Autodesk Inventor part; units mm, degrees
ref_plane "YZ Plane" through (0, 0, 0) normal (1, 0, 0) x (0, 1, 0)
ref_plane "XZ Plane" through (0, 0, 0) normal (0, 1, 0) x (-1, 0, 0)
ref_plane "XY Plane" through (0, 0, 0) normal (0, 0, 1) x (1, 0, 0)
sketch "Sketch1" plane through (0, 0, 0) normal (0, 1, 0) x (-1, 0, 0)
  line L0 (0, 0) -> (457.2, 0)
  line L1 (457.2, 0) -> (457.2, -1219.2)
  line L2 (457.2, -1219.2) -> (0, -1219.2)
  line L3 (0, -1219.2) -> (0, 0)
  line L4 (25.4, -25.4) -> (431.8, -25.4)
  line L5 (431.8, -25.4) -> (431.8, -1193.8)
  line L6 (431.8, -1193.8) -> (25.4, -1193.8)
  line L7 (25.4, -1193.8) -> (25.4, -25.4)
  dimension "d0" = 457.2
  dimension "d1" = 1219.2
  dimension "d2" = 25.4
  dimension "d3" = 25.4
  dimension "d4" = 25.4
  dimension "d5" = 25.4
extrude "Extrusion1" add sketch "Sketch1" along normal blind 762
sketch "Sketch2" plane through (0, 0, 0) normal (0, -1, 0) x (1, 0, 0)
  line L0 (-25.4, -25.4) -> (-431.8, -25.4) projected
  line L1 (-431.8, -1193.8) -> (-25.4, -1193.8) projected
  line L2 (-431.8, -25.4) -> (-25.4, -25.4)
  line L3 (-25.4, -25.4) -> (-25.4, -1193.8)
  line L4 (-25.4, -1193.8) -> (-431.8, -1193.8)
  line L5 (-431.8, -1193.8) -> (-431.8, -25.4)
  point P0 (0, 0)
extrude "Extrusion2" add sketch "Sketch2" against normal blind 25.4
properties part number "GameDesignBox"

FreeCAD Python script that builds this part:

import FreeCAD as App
import Part
import Sketcher
from FreeCAD import Vector
Q = App.Units.Quantity

doc = App.newDocument("Part")
body = doc.addObject("PartDesign::Body", "Body")

# Sketch on XZ plane
sketch1 = body.newObject("Sketcher::SketchObject", "Sketch")
sketch1.AttachmentSupport = (doc.getObject("XZ_Plane"), [""])
sketch1.MapMode = "FlatFace"
sketch1.addGeometry([
    Part.LineSegment(Vector(-457, 0, 0), Vector(0, 0, 0)),  # 0
    Part.LineSegment(Vector(0, 0, 0), Vector(0, -1219, 0)),  # 1
    Part.LineSegment(Vector(0, -1219, 0), Vector(-457, -1219, 0)),  # 2
    Part.LineSegment(Vector(-457, -1219, 0), Vector(-457, 0, 0)),  # 3
    Part.LineSegment(Vector(-25, -1194, 0), Vector(-25, -25, 0)),  # 4
    Part.LineSegment(Vector(-25, -25, 0), Vector(-432, -25, 0)),  # 5
    Part.LineSegment(Vector(-432, -25, 0), Vector(-432, -1194, 0)),  # 6
    Part.LineSegment(Vector(-432, -1194, 0), Vector(-25, -1194, 0)),  # 7
], False)
sketch1.addConstraint([
    Sketcher.Constraint("Coincident", 0, 2, 1, 1),
    Sketcher.Constraint("Coincident", 1, 2, 2, 1),
    Sketcher.Constraint("Coincident", 2, 2, 3, 1),
    Sketcher.Constraint("Coincident", 3, 2, 0, 1),
    Sketcher.Constraint("Coincident", 4, 2, 5, 1),
    Sketcher.Constraint("Coincident", 5, 2, 6, 1),
    Sketcher.Constraint("Coincident", 6, 2, 7, 1),
    Sketcher.Constraint("Coincident", 7, 2, 4, 1),
    Sketcher.Constraint("Horizontal", 0),
    Sketcher.Constraint("Vertical", 1),
    Sketcher.Constraint("Horizontal", 2),
    Sketcher.Constraint("Vertical", 3),
    Sketcher.Constraint("Vertical", 4),
    Sketcher.Constraint("Horizontal", 5),
    Sketcher.Constraint("Vertical", 6),
    Sketcher.Constraint("Horizontal", 7),
    Sketcher.Constraint("Coincident", 0, 2, -1, 1),
    Sketcher.Constraint("DistanceX", 0, 1, 0, 2, Q("18 in")),
    Sketcher.Constraint("DistanceY", 1, 2, 1, 1, Q("48 in")),
    Sketcher.Constraint("DistanceX", 4, 2, -1, 1, Q("1 in")),
    Sketcher.Constraint("DistanceY", 4, 2, -1, 1, Q("1 in")),
    Sketcher.Constraint("DistanceX", 3, 2, 5, 2, Q("1 in")),
    Sketcher.Constraint("DistanceY", 2, 2, 6, 2, Q("1 in")),
])
pad1 = body.newObject("PartDesign::Pad", "Pad")
pad1.Profile = sketch1
pad1.Length = Q("30 in")
pad1.Reversed = True

# Sketch on XZ plane
sketch2 = body.newObject("Sketcher::SketchObject", "Sketch001")
sketch2.AttachmentSupport = (doc.getObject("XZ_Plane"), [""])
sketch2.MapMode = "FlatFace"
sketch2.addGeometry([
    Part.LineSegment(Vector(-25, -1194, 0), Vector(-25, -25, 0)),
    Part.LineSegment(Vector(-25, -25, 0), Vector(-432, -25, 0)),
    Part.LineSegment(Vector(-432, -25, 0), Vector(-432, -1194, 0)),
    Part.LineSegment(Vector(-432, -1194, 0), Vector(-25, -1194, 0)),
], False)
sketch2.addConstraint([
    Sketcher.Constraint("Coincident", 0, 2, 1, 1),
    Sketcher.Constraint("Coincident", 1, 2, 2, 1),
    Sketcher.Constraint("Coincident", 2, 2, 3, 1),
    Sketcher.Constraint("Coincident", 3, 2, 0, 1),
    Sketcher.Constraint("Vertical", 0),
    Sketcher.Constraint("Horizontal", 1),
    Sketcher.Constraint("Vertical", 2),
    Sketcher.Constraint("Horizontal", 3),
    Sketcher.Constraint("DistanceX", 1, 2, 1, 1, Q("16 in")),
    Sketcher.Constraint("DistanceY", 0, 1, 0, 2, Q("46 in")),
    Sketcher.Constraint("DistanceX", 0, 2, -1, 1, Q("1 in")),
    Sketcher.Constraint("DistanceY", 0, 2, -1, 1, Q("1 in")),
])
pad2 = body.newObject("PartDesign::Pad", "Pad001")
pad2.Profile = sketch2
pad2.Length = Q("1 in")
pad2.Reversed = True

doc.recompute()
